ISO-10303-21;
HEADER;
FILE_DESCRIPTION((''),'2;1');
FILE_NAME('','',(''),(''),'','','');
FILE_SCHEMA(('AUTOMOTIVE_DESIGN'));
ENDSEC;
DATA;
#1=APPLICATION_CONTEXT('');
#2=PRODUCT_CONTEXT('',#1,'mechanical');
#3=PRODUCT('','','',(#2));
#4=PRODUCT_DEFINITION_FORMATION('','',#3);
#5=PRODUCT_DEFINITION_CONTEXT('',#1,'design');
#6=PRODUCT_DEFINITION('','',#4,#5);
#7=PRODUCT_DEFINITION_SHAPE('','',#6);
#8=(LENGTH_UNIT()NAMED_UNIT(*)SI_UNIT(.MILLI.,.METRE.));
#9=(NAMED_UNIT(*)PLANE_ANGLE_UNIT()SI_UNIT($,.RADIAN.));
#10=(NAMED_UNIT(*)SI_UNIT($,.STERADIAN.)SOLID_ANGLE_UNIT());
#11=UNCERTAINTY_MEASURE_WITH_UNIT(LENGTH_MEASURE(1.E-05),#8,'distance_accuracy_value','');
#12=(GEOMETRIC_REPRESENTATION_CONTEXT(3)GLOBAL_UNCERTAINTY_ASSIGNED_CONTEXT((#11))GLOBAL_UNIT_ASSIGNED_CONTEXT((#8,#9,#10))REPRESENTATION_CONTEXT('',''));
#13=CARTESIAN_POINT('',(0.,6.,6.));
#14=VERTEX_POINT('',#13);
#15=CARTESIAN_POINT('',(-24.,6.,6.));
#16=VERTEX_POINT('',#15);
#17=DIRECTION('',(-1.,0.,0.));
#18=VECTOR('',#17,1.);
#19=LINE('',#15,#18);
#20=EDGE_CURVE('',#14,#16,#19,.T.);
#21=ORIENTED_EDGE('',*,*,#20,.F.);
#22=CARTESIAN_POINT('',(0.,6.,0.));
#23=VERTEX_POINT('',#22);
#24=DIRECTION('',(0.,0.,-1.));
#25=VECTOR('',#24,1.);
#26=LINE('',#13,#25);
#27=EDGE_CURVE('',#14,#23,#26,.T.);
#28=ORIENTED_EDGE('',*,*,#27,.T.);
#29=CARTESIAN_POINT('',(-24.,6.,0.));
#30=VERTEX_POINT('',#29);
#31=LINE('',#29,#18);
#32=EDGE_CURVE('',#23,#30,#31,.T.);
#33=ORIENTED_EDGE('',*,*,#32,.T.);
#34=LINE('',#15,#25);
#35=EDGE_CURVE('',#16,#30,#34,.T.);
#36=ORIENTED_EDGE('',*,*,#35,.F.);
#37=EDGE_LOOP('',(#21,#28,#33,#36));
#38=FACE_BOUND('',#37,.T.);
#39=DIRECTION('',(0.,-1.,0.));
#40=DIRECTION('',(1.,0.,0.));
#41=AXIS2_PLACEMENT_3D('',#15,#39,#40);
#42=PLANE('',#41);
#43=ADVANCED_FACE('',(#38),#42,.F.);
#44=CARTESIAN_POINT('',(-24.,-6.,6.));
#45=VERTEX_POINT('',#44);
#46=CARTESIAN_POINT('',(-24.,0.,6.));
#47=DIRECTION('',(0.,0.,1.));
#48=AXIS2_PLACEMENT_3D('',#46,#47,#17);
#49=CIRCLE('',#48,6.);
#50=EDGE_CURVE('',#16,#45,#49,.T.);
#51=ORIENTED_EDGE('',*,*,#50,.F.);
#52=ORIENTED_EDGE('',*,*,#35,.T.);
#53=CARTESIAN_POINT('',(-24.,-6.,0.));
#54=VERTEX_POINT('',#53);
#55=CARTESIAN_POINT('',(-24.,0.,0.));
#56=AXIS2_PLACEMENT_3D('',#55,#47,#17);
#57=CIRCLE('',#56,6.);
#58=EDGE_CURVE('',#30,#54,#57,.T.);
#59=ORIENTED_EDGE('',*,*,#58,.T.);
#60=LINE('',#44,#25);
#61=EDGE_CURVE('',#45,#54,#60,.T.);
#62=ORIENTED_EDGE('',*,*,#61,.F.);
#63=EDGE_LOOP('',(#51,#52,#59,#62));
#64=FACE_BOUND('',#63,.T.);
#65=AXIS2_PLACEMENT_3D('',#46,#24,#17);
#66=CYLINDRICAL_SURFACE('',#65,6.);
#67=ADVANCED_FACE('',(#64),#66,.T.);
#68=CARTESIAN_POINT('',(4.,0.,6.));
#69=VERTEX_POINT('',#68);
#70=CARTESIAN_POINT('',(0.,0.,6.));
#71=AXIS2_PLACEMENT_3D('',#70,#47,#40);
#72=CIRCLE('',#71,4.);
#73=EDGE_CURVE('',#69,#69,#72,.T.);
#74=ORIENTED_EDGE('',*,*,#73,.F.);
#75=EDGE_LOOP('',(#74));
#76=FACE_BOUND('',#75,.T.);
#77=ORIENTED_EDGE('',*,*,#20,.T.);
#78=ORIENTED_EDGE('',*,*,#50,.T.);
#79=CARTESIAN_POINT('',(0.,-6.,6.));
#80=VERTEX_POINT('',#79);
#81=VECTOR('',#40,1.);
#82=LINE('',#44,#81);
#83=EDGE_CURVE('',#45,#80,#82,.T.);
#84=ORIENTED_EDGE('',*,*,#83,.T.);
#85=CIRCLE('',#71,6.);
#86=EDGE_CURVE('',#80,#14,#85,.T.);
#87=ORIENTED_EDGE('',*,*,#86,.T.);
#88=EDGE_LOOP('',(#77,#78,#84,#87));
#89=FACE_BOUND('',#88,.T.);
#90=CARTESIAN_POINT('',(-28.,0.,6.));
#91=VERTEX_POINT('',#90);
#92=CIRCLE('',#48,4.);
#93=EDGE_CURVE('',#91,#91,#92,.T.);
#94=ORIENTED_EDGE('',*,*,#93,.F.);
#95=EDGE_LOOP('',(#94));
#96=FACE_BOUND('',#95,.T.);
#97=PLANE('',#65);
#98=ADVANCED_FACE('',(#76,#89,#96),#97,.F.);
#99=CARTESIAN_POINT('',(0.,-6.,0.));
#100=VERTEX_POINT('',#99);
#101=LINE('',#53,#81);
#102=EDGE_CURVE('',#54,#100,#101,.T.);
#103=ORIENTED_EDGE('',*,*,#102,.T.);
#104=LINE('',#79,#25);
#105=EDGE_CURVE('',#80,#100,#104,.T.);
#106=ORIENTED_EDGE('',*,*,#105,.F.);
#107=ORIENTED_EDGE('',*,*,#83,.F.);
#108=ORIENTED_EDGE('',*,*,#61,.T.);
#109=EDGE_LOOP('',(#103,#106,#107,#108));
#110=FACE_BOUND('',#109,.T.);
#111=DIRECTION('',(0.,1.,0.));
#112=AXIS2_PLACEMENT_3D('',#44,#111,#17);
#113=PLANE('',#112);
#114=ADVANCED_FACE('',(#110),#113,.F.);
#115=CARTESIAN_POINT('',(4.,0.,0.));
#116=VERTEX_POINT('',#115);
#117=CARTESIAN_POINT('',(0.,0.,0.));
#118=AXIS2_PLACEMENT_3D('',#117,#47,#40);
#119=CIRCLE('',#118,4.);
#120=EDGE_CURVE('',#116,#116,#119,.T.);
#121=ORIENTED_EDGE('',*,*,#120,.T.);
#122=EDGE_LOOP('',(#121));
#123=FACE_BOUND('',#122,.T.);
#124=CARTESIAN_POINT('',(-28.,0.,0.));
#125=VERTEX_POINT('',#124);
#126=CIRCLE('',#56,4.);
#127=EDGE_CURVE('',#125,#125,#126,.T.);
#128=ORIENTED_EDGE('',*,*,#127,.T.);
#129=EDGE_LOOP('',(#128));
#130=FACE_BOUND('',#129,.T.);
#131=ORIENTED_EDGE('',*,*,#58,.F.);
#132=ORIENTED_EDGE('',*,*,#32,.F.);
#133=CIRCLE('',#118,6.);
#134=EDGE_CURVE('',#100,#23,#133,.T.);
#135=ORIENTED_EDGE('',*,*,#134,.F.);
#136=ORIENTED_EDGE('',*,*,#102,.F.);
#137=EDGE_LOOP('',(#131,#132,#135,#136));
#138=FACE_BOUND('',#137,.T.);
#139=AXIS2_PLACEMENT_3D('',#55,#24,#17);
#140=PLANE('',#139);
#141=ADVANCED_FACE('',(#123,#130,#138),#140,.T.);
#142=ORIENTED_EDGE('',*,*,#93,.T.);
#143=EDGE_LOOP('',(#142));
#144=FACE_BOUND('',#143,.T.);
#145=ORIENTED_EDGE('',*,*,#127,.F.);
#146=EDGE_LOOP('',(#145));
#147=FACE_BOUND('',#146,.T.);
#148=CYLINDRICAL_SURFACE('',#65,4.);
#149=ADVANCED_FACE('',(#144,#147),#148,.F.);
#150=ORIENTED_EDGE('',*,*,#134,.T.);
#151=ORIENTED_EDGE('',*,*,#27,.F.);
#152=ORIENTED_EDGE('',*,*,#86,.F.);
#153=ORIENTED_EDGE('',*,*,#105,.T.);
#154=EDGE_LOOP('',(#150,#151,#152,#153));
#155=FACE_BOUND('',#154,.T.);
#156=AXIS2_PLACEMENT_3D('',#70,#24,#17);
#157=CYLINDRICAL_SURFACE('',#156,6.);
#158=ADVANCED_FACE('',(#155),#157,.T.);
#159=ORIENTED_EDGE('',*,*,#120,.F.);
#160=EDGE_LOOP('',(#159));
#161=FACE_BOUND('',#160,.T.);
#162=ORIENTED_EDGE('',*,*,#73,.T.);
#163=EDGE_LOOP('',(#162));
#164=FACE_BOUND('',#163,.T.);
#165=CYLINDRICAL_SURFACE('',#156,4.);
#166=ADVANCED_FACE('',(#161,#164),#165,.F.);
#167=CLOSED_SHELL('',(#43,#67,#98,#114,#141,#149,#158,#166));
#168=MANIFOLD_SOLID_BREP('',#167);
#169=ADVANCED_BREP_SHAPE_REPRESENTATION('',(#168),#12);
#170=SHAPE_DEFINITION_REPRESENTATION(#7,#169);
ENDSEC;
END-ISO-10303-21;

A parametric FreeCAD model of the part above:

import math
import FreeCAD as App
import Part
import Sketcher

doc = App.newDocument("Part")
body = doc.addObject("PartDesign::Body", "Body")

# Sketch on XY plane
sketch1 = body.newObject("Sketcher::SketchObject", "Sketch")
sketch1.AttachmentSupport = (doc.getObject("XY_Plane"), [""])
sketch1.MapMode = "FlatFace"
sketch1.addGeometry([
    Part.LineSegment(App.Vector(0, 6, 0), App.Vector(-24, 6, 0)),  # 0
    Part.ArcOfCircle(Part.Circle(App.Vector(-24, 0, 0), App.Vector(0, 0, 1), 6), math.radians(90), math.radians(270)),  # 1
    Part.LineSegment(App.Vector(-24, -6, 0), App.Vector(0, -6, 0)),  # 2
    Part.ArcOfCircle(Part.Circle(App.Vector(0, 0, 0), App.Vector(0, 0, 1), 6), math.radians(-90), math.radians(90)),  # 3
    Part.Circle(App.Vector(0, 0, 0), App.Vector(0, 0, 1), 4),  # 4
    Part.Circle(App.Vector(-24, 0, 0), App.Vector(0, 0, 1), 4),  # 5
], False)
sketch1.addConstraint([
    Sketcher.Constraint("Tangent", 0, 2, 1, 1),
    Sketcher.Constraint("Tangent", 1, 2, 2, 1),
    Sketcher.Constraint("Tangent", 2, 2, 3, 1),
    Sketcher.Constraint("Tangent", 3, 2, 0, 1),
    Sketcher.Constraint("Horizontal", 0),
    Sketcher.Constraint("Horizontal", 2),
    Sketcher.Constraint("Coincident", 3, 3, -1, 1),
    Sketcher.Constraint("Coincident", 4, 3, -1, 1),
    Sketcher.Constraint("Coincident", 5, 3, 1, 3),
    Sketcher.Constraint("Equal", 4, 5),
    Sketcher.Constraint("Diameter", 4, 8.0),
    Sketcher.Constraint("Radius", 1, 6.0),
    Sketcher.Constraint("DistanceX", 0, 2, 0, 1, 24.0),
])
pad1 = body.newObject("PartDesign::Pad", "Pad")
pad1.Profile = sketch1
pad1.Length = 6

doc.recompute()
